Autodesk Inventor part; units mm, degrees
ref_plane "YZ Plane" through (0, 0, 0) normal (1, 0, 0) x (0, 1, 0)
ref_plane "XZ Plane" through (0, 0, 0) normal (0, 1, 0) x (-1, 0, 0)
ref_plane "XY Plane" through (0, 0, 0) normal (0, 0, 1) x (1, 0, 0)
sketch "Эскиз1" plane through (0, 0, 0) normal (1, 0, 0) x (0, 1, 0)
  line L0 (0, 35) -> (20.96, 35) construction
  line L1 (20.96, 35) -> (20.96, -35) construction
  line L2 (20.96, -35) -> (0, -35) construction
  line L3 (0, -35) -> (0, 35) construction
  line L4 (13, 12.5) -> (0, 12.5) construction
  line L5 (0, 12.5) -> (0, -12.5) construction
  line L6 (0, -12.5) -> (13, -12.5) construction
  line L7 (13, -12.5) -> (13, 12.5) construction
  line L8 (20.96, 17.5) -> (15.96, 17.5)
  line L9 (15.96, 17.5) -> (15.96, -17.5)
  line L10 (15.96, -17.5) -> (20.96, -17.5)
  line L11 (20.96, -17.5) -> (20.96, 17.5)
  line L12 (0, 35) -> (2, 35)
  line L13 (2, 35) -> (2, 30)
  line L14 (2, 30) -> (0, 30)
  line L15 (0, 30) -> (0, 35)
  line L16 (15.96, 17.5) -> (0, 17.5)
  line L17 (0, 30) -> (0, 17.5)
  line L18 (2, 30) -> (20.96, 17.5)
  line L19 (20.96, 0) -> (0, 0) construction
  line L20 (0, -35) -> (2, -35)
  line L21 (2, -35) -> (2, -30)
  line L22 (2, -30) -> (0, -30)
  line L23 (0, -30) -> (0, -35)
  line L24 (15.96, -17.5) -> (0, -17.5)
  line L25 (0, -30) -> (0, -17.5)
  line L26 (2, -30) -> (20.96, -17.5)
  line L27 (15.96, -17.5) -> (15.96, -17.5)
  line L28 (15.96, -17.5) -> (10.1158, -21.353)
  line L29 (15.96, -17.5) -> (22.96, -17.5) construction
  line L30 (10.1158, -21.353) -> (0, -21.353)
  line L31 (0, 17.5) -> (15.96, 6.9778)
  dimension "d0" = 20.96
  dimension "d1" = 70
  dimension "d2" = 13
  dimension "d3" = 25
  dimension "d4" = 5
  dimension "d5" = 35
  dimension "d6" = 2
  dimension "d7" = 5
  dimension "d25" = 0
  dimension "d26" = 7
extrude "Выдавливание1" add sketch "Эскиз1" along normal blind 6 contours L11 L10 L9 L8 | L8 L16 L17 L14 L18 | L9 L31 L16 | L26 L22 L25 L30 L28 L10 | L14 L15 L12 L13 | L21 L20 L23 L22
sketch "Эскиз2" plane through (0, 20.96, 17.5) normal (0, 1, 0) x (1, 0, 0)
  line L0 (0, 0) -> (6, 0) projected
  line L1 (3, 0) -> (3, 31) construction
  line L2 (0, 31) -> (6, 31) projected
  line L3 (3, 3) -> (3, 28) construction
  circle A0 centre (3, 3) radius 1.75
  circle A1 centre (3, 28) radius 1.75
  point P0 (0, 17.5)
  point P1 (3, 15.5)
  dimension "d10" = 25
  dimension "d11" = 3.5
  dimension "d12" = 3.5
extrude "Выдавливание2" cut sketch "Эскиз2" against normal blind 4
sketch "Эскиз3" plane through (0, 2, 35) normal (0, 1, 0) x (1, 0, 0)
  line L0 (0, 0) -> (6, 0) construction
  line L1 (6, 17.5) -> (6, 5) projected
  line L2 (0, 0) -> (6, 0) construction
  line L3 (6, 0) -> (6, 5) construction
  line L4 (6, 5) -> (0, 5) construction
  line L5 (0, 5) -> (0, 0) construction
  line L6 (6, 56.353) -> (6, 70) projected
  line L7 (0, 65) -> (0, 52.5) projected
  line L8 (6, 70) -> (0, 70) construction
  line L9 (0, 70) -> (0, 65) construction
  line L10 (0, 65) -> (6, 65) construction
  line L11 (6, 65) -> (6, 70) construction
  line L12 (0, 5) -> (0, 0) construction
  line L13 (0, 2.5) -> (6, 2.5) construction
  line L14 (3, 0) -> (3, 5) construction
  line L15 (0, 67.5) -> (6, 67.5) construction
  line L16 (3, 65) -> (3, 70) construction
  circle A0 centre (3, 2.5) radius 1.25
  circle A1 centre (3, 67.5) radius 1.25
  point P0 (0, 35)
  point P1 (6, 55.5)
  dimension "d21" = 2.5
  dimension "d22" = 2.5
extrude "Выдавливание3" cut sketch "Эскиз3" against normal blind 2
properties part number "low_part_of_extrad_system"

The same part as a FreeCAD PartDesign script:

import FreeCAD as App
import Part
import Sketcher

V = App.Vector
Q = App.Units.Quantity


def add_polygon(sketch, points):
    """Adds a closed chain of lines whose ends are joined by coincident constraints."""
    first, n = sketch.GeometryCount, len(points)
    for a, b in zip(points, points[1:] + points[:1]):
        sketch.addGeometry(Part.LineSegment(App.Vector(*a, 0), App.Vector(*b, 0)), False)
    for i in range(n):
        sketch.addConstraint(Sketcher.Constraint("Coincident", first + i, 2, first + (i + 1) % n, 1))

doc = App.newDocument("Part")
body = doc.addObject("PartDesign::Body", "Body")

# Sketch on YZ plane
sketch1 = body.newObject("Sketcher::SketchObject", "Sketch")
sketch1.AttachmentSupport = (doc.getObject("YZ_Plane"), [""])
sketch1.MapMode = "FlatFace"
add_polygon(sketch1, [(21, -17.5), (21, 17.5), (2, 30), (2, 35), (0, 35), (0, 17.5), (16, 7), (16, -17.5), (10.1, -21.4), (0, -21.4), (0, -35), (2, -35), (2, -30)])  # lines 0-12
sketch1.addConstraint(Sketcher.Constraint("Vertical", 0))
sketch1.addConstraint(Sketcher.Constraint("Vertical", 2))
sketch1.addConstraint(Sketcher.Constraint("Horizontal", 3))
sketch1.addConstraint(Sketcher.Constraint("Vertical", 4))
sketch1.addConstraint(Sketcher.Constraint("Vertical", 6))
sketch1.addConstraint(Sketcher.Constraint("Horizontal", 8))
sketch1.addConstraint(Sketcher.Constraint("Vertical", 9))
sketch1.addConstraint(Sketcher.Constraint("Horizontal", 10))
sketch1.addConstraint(Sketcher.Constraint("Vertical", 11))
sketch1.addConstraint(Sketcher.Constraint("Symmetric", 3, 2, 9, 2, -1, 1))
sketch1.addConstraint(Sketcher.Constraint("Symmetric", 1, 2, 11, 2, -1))
sketch1.addConstraint(Sketcher.Constraint("PointOnObject", 3, 2, -2))
sketch1.addConstraint(Sketcher.Constraint("Parallel", 1, 5))
sketch1.addConstraint(Sketcher.Constraint("Parallel", 7, 12))
sketch1.addConstraint(Sketcher.Constraint("Horizontal", 0, 2, 4, 2))
sketch1.addConstraint(Sketcher.Constraint("Horizontal", 6, 2, 12, 2))
sketch1.addConstraint(Sketcher.Constraint("Equal", 1, 12))
sketch1.addConstraint(Sketcher.Constraint("DistanceX", 3, 2, 3, 1, Q("2 mm")))
sketch1.addConstraint(Sketcher.Constraint("DistanceY", 0, 1, 0, 2, Q("35 mm")))
sketch1.addConstraint(Sketcher.Constraint("DistanceY", 2, 1, 2, 2, Q("5 mm")))
sketch1.addConstraint(Sketcher.Constraint("Distance", 7, Q("7 mm")))
sketch1.addConstraint(Sketcher.Constraint("DistanceY", -1, 1, 2, 2, Q("35 mm")))
sketch1.addConstraint(Sketcher.Constraint("DistanceX", 5, 2, 0, 2, Q("5 mm")))
sketch1.addConstraint(Sketcher.Constraint("DistanceX", -1, 1, 0, 2, Q("20.96 mm")))
pad1 = body.newObject("PartDesign::Pad", "Pad")
pad1.Profile = sketch1
pad1.Length = 6

# Sketch on XZ plane
sketch2 = body.newObject("Sketcher::SketchObject", "Sketch001")
sketch2.AttachmentSupport = (doc.getObject("XZ_Plane"), [""])
sketch2.MapMode = "FlatFace"
sketch2.AttachmentOffset = App.Placement(V(0, 0, -20.96), App.Rotation())
sketch2.addGeometry(Part.Circle(V(3, 14.5, 0), V(0, 0, 1), 1.8), False)
sketch2.addGeometry(Part.Circle(V(3, -10.5, 0), V(0, 0, 1), 1.8), False)
sketch2.addConstraint(Sketcher.Constraint("Equal", 0, 1))
sketch2.addConstraint(Sketcher.Constraint("Vertical", 0, 3, 1, 3))
sketch2.addConstraint(Sketcher.Constraint("Diameter", 0, Q("3.5 mm")))
sketch2.addConstraint(Sketcher.Constraint("DistanceY", 1, 3, 0, 3, Q("25 mm")))
sketch2.addConstraint(Sketcher.Constraint("DistanceX", -1, 1, 0, 3, Q("3 mm")))
sketch2.addConstraint(Sketcher.Constraint("DistanceY", -1, 1, 0, 3, Q("14.5 mm")))
pocket1 = body.newObject("PartDesign::Pocket", "Pocket")
pocket1.Profile = sketch2
pocket1.Length = 4
pocket1.Reversed = True

# Sketch on XZ plane
sketch3 = body.newObject("Sketcher::SketchObject", "Sketch002")
sketch3.AttachmentSupport = (doc.getObject("XZ_Plane"), [""])
sketch3.MapMode = "FlatFace"
sketch3.AttachmentOffset = App.Placement(V(0, 0, -2), App.Rotation())
sketch3.addGeometry(Part.Circle(V(3, 32.5, 0), V(0, 0, 1), 1.2), False)
sketch3.addGeometry(Part.Circle(V(3, -32.5, 0), V(0, 0, 1), 1.2), False)
sketch3.addConstraint(Sketcher.Constraint("Equal", 0, 1))
sketch3.addConstraint(Sketcher.Constraint("Symmetric", 0, 3, 1, 3, -1))
sketch3.addConstraint(Sketcher.Constraint("Diameter", 0, Q("2.5 mm")))
sketch3.addConstraint(Sketcher.Constraint("DistanceX", -1, 1, 0, 3, Q("3 mm")))
sketch3.addConstraint(Sketcher.Constraint("DistanceY", 1, 3, 0, 3, Q("65 mm")))
pocket2 = body.newObject("PartDesign::Pocket", "Pocket001")
pocket2.Profile = sketch3
pocket2.Length = 2
pocket2.Reversed = True

doc.recompute()
